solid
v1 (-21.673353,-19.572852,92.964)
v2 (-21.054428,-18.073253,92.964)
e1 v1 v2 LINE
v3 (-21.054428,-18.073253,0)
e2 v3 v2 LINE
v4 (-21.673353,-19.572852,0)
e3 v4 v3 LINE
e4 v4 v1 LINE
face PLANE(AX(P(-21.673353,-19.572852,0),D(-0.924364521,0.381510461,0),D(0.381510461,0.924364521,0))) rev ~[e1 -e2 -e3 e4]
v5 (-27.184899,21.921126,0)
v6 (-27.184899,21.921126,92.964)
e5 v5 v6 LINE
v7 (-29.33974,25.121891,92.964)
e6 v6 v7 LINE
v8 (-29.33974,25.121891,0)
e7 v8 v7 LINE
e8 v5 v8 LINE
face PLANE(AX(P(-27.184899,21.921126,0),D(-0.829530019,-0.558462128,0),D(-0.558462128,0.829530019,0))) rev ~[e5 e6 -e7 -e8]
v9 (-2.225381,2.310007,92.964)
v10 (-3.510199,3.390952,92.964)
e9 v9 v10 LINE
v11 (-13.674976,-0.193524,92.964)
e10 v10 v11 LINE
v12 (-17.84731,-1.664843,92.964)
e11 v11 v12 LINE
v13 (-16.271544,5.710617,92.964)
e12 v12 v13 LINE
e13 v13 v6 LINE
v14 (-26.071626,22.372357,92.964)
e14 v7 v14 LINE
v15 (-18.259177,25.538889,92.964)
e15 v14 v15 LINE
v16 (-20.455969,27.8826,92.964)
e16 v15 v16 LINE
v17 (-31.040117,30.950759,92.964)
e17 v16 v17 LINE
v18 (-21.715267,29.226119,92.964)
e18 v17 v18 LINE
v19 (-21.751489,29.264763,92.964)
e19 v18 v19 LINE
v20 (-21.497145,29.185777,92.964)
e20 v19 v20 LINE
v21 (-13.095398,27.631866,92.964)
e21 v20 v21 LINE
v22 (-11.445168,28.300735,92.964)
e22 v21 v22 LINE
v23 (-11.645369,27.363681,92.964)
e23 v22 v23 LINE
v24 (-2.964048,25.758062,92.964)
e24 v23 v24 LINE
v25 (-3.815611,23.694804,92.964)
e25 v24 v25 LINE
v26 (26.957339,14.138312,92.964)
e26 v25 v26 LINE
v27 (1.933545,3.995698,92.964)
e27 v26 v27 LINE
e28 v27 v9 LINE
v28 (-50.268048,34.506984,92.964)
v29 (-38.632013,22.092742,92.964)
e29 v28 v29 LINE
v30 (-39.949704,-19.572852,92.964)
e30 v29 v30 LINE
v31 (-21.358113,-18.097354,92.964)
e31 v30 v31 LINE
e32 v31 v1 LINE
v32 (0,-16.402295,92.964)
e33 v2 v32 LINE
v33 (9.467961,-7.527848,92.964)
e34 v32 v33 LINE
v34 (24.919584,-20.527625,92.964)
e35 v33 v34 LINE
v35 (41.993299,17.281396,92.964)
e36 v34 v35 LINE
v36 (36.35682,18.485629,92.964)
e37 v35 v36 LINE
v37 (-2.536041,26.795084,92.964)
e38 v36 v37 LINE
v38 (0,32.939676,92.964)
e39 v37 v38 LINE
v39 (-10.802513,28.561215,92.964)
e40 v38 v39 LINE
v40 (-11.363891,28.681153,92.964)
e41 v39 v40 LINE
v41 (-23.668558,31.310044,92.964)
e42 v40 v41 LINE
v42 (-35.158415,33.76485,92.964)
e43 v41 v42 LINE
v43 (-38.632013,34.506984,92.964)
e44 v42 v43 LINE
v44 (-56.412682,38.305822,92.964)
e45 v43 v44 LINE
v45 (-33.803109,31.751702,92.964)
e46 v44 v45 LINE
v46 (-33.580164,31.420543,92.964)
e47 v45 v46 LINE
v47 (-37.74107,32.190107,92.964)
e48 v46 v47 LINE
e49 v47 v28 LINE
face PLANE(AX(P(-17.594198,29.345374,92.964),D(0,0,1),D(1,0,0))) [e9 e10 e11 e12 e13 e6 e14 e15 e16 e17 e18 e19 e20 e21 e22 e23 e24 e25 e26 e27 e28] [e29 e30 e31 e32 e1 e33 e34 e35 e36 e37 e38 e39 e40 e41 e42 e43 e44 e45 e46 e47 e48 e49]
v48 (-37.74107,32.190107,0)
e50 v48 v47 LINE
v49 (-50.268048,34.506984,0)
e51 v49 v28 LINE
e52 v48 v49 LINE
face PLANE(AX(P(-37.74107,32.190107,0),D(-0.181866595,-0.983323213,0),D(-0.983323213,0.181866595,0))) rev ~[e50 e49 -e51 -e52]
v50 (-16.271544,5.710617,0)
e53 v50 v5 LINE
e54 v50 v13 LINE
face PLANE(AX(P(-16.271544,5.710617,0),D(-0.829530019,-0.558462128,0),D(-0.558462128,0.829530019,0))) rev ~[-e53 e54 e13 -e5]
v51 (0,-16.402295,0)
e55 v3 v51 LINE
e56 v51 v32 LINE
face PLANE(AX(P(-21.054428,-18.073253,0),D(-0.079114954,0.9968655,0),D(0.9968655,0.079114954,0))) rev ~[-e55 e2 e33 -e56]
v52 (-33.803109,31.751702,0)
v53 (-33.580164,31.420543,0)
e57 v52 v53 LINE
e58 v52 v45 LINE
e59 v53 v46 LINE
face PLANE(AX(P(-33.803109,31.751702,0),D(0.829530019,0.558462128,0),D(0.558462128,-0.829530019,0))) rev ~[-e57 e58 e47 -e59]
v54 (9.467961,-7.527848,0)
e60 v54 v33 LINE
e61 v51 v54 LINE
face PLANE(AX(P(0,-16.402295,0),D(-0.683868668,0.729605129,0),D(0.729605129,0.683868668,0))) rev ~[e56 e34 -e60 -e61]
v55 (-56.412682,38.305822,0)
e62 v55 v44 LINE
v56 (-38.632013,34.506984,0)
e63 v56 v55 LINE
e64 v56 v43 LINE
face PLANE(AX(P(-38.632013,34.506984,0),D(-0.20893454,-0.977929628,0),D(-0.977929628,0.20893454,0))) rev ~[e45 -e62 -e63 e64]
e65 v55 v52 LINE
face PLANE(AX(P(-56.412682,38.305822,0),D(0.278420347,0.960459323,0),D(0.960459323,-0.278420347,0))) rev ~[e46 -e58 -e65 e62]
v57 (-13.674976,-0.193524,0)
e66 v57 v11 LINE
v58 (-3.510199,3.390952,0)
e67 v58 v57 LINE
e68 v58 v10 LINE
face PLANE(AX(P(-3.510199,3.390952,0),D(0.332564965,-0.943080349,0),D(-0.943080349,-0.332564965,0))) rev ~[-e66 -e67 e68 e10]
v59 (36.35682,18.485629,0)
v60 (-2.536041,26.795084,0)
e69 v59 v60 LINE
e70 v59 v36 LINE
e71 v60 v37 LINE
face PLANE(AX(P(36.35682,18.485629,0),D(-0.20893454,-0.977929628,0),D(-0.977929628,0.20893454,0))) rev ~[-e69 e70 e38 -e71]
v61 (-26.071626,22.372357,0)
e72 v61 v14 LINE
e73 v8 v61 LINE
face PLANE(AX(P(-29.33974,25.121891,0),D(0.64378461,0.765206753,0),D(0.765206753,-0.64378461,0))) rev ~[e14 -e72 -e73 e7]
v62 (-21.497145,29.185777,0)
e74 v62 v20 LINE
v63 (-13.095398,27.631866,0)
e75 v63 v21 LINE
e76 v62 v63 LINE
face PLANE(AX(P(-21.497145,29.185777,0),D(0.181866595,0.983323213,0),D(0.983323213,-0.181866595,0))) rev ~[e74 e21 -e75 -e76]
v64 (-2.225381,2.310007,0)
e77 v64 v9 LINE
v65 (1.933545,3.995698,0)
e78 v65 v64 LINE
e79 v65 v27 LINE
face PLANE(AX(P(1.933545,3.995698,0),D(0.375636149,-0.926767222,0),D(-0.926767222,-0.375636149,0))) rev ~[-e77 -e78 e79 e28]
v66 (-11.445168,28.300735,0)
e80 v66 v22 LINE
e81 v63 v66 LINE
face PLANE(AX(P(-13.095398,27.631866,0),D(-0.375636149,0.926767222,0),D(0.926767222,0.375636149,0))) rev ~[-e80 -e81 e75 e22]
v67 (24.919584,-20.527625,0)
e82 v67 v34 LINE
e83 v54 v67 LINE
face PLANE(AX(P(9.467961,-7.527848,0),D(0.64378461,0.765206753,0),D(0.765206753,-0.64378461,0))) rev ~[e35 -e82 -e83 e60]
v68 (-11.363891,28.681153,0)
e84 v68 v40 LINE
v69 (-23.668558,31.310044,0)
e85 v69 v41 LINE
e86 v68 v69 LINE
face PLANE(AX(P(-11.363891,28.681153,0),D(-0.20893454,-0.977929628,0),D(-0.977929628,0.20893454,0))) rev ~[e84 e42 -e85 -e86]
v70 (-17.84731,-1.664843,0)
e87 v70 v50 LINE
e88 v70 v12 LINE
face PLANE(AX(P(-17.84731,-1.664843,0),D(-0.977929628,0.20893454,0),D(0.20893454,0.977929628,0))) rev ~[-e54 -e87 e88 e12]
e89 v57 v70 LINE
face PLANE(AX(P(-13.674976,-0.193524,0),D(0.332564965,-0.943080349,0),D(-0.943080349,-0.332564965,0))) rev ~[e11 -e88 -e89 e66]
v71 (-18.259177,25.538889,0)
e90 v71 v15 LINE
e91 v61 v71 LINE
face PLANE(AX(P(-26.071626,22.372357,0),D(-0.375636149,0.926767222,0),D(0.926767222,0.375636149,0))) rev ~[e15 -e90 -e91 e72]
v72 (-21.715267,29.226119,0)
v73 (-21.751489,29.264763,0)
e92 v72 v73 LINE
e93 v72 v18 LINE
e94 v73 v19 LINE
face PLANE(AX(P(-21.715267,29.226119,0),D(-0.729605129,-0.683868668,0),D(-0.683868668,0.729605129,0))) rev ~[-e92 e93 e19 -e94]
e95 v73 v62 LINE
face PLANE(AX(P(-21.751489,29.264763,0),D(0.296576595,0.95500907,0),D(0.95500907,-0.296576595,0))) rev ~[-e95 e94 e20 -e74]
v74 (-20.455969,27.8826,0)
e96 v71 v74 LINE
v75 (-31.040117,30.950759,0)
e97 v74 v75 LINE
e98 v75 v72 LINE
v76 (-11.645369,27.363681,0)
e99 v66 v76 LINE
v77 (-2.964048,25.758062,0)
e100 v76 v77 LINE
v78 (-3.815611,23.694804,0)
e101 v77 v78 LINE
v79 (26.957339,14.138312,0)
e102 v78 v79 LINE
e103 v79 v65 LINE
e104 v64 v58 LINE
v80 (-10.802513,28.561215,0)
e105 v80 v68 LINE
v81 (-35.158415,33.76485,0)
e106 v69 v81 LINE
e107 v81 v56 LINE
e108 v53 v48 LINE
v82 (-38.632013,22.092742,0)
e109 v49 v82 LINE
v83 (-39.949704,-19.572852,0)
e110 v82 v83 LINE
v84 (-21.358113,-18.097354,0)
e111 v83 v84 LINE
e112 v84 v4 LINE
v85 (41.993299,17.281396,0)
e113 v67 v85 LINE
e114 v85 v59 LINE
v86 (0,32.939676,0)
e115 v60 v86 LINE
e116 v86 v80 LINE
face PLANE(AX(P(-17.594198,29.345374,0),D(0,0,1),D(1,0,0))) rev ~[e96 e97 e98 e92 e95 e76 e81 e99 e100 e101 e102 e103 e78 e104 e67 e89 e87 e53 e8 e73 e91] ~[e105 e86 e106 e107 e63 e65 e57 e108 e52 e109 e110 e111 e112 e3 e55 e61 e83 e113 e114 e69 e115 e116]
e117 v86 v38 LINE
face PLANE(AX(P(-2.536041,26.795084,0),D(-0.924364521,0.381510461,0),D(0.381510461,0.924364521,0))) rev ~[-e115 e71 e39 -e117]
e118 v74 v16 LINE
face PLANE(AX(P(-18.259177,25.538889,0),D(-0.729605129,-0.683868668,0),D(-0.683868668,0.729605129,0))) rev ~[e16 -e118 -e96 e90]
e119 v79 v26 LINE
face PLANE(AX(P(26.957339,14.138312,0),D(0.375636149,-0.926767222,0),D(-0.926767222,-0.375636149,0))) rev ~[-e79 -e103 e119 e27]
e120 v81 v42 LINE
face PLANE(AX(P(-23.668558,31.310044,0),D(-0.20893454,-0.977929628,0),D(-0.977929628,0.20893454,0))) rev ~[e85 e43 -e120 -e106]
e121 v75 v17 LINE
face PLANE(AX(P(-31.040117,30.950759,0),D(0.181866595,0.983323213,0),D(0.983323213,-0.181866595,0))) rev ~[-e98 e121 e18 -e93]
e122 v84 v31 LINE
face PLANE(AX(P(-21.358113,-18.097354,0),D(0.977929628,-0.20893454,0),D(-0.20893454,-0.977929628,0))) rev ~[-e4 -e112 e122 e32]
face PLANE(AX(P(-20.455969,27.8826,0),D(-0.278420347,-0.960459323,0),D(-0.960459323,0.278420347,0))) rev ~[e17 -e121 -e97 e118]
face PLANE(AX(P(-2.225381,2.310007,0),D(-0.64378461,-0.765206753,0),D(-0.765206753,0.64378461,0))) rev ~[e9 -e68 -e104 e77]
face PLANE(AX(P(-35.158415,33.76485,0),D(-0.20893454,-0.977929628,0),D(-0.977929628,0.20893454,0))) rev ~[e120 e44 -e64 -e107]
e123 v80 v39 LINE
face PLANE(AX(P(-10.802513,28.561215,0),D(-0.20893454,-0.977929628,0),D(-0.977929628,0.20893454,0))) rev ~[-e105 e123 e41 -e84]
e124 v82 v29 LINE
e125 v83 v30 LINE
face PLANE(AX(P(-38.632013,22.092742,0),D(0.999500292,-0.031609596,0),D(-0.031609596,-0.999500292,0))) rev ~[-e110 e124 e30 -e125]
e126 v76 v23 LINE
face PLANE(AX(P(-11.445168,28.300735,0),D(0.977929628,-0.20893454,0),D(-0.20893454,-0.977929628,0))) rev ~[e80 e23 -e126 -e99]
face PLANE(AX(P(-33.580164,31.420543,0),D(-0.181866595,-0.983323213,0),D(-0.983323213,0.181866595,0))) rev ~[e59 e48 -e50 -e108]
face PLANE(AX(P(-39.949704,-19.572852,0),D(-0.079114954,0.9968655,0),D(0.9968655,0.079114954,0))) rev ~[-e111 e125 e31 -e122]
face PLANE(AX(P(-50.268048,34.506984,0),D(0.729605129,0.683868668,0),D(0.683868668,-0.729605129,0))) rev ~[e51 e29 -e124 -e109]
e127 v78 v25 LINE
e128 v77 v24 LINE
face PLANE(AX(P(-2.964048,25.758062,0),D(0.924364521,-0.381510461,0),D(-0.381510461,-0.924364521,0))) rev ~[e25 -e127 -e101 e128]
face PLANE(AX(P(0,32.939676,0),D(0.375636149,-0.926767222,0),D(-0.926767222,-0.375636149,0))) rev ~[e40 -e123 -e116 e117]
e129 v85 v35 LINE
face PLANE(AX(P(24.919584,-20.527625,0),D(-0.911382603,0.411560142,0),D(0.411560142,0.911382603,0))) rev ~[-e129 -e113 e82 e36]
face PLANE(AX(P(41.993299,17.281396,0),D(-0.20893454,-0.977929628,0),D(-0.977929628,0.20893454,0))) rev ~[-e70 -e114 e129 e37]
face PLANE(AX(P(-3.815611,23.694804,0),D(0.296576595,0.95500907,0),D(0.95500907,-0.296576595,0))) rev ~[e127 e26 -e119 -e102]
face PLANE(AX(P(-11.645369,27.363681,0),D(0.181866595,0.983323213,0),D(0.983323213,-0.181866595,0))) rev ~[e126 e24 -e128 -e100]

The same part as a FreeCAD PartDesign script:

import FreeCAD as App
import Part
import Sketcher
from FreeCAD import Vector
Q = App.Units.Quantity


def add_polygon(sketch, points):
    """Adds a closed chain of lines whose ends are joined by coincident constraints."""
    first, n = sketch.GeometryCount, len(points)
    for a, b in zip(points, points[1:] + points[:1]):
        sketch.addGeometry(Part.LineSegment(App.Vector(*a, 0), App.Vector(*b, 0)), False)
    for i in range(n):
        sketch.addConstraint(Sketcher.Constraint("Coincident", first + i, 2, first + (i + 1) % n, 1))

doc = App.newDocument("Part")
params = doc.addObject("Spreadsheet::Sheet", "Params")
for row, (alias, value) in enumerate([
    ("pad1_length", "3.66 in"),
], start=1):
    params.set(f"A{row}", alias)
    params.set(f"B{row}", "=" + value)
    params.setAlias(f"B{row}", alias)

body = doc.addObject("PartDesign::Body", "Body")

# Sketch on XY plane
sketch1 = body.newObject("Sketcher::SketchObject", "Sketch")
sketch1.AttachmentSupport = (doc.getObject("XY_Plane"), [""])
sketch1.MapMode = "FlatFace"
add_polygon(sketch1, [(-38.632013, 22.092742), (-39.949704, -19.572852), (-21.358113, -18.097354), (-21.673353, -19.572852), (-21.054428, -18.073253), (0, -16.402295), (9.467961, -7.527848), (24.919584, -20.527625), (41.993299, 17.281396), (36.35682, 18.485629), (-2.536041, 26.795084), (0, 32.939676), (-10.802513, 28.561215), (-11.363891, 28.681153), (-23.668558, 31.310044), (-35.158415, 33.76485), (-38.632013, 34.506984), (-56.412682, 38.305822), (-33.803109, 31.751702), (-33.580164, 31.420543), (-37.74107, 32.190107), (-50.268048, 34.506984)])  # lines 0-21
add_polygon(sketch1, [(-13.674976, -0.193524), (-17.84731, -1.664843), (-16.271544, 5.710617), (-27.184899, 21.921126), (-29.33974, 25.121891), (-26.071626, 22.372357), (-18.259177, 25.538889), (-20.455969, 27.8826), (-31.040117, 30.950759), (-21.715267, 29.226119), (-21.751489, 29.264763), (-21.497145, 29.185777), (-13.095398, 27.631866), (-11.445168, 28.300735), (-11.645369, 27.363681), (-2.964048, 25.758062), (-3.815611, 23.694804), (26.957339, 14.138312), (1.933545, 3.995698), (-2.225381, 2.310007), (-3.510199, 3.390952)])  # lines 22-42
sketch1.addConstraint([
    Sketcher.Constraint("PointOnObject", 4, 2, -2),
    Sketcher.Constraint("PointOnObject", 10, 2, -2),
    Sketcher.Constraint("DistanceX", 34, 2, 12, 2, Q("0.0031999 in")),
    Sketcher.Constraint("Distance", 24, Q("19.5418 mm")),
    Sketcher.Constraint("Distance", 28, Q("3.2123 mm")),
    Sketcher.Constraint("Distance", 35, Q("0.958201 mm")),
    Sketcher.Constraint("DistanceX", -1, 1, 7, 2, Q("41.993299 mm")),
    Sketcher.Constraint("DistanceX", 24, 2, -1, 1, Q("27.184899 mm")),
    Sketcher.Constraint("DistanceY", -1, 1, 28, 2, Q("27.8826 mm")),
    Sketcher.Constraint("DistanceY", -1, 1, 39, 2, Q("3.995698 mm")),
    Sketcher.Constraint("DistanceX", 41, 2, -1, 1, Q("3.510199 mm")),
    Sketcher.Constraint("DistanceY", 1, 2, 3, 2, Q("0.024102 mm")),
    Sketcher.Constraint("DistanceY", 2, 2, 3, 2, Q("1.499599 mm")),
    Sketcher.Constraint("DistanceY", 0, 2, 3, 2, Q("1.499599 mm")),
    Sketcher.Constraint("DistanceX", 9, 2, 5, 2, Q("12.004002 mm")),
    Sketcher.Constraint("DistanceY", 5, 2, 12, 2, Q("36.209001 mm")),
    Sketcher.Constraint("DistanceX", 14, 2, 11, 2, Q("24.355902 mm")),
    Sketcher.Constraint("DistanceX", 15, 2, 11, 2, Q("27.8295 mm")),
    Sketcher.Constraint("DistanceY", 9, 2, 15, 2, Q("7.7119 mm")),
    Sketcher.Constraint("DistanceY", 13, 2, 18, 2, Q("0.1105 mm")),
    Sketcher.Constraint("DistanceY", 21, 2, 18, 2, Q("9.327801 mm")),
    Sketcher.Constraint("DistanceY", 23, 2, 11, 2, Q("22.850598 mm")),
    Sketcher.Constraint("DistanceX", 14, 2, 29, 2, Q("4.118298 mm")),
    Sketcher.Constraint("DistanceX", 30, 2, 28, 2, Q("1.259299 mm")),
    Sketcher.Constraint("DistanceX", 28, 2, 34, 2, Q("9.010801 mm")),
    Sketcher.Constraint("DistanceX", 35, 2, 34, 2, Q("0.200201 mm")),
    Sketcher.Constraint("DistanceY", 5, 2, 41, 2, Q("10.9188 mm")),
    Sketcher.Constraint("Distance", 1, Q("18.650049 mm")),
    Sketcher.Constraint("Distance", 4, Q("21.12063 mm")),
    Sketcher.Constraint("Distance", 5, Q("12.976829 mm")),
    Sketcher.Constraint("Distance", 10, Q("6.647369 mm")),
    Sketcher.Constraint("Distance", 15, Q("3.551992 mm")),
    Sketcher.Constraint("Distance", 16, Q("18.181951 mm")),
    Sketcher.Constraint("Distance", 20, Q("12.739431 mm")),
    Sketcher.Constraint("Distance", 26, Q("4.270891 mm")),
    Sketcher.Constraint("Distance", 29, Q("11.019882 mm")),
    Sketcher.Constraint("Distance", 34, Q("1.780631 mm")),
    Sketcher.Constraint("Distance", 38, Q("32.222679 mm")),
    Sketcher.Constraint("DistanceX", -1, 1, 5, 2, Q("9.467961 mm")),
    Sketcher.Constraint("DistanceY", 5, 2, -1, 1, Q("7.527848 mm")),
    Sketcher.Constraint("DistanceX", -1, 1, 8, 2, Q("36.35682 mm")),
    Sketcher.Constraint("DistanceY", -1, 1, 8, 2, Q("18.485629 mm")),
    Sketcher.Constraint("DistanceX", 12, 2, -1, 1, Q("11.363891 mm")),
    Sketcher.Constraint("DistanceY", -1, 1, 14, 2, Q("33.76485 mm")),
    Sketcher.Constraint("DistanceX", 16, 2, -1, 1, Q("56.412682 mm")),
    Sketcher.Constraint("DistanceY", -1, 1, 16, 2, Q("38.305822 mm")),
    Sketcher.Constraint("DistanceX", 17, 2, -1, 1, Q("33.803109 mm")),
    Sketcher.Constraint("DistanceX", 19, 2, -1, 1, Q("37.74107 mm")),
    Sketcher.Constraint("DistanceX", 20, 2, -1, 1, Q("50.268048 mm")),
    Sketcher.Constraint("DistanceY", -1, 1, 21, 2, Q("22.092742 mm")),
    Sketcher.Constraint("DistanceX", 22, 2, -1, 1, Q("17.84731 mm")),
    Sketcher.Constraint("DistanceX", 25, 2, -1, 1, Q("29.33974 mm")),
    Sketcher.Constraint("DistanceY", -1, 1, 25, 2, Q("25.121891 mm")),
    Sketcher.Constraint("DistanceY", -1, 1, 27, 2, Q("25.538889 mm")),
    Sketcher.Constraint("DistanceY", -1, 1, 30, 2, Q("29.226119 mm")),
    Sketcher.Constraint("DistanceX", 31, 2, -1, 1, Q("21.751489 mm")),
    Sketcher.Constraint("DistanceY", -1, 1, 35, 2, Q("27.363681 mm")),
    Sketcher.Constraint("DistanceX", 37, 2, -1, 1, Q("3.815611 mm")),
    Sketcher.Constraint("DistanceX", -1, 1, 38, 2, Q("26.957339 mm")),
    Sketcher.Constraint("DistanceY", -1, 1, 38, 2, Q("14.138312 mm")),
    Sketcher.Constraint("DistanceX", 40, 2, -1, 1, Q("2.225381 mm")),
    Sketcher.Constraint("DistanceX", 2, 2, 1, 2, Q("0.31524 mm")),
    Sketcher.Constraint("DistanceY", 1, 2, 4, 2, Q("1.695059 mm")),
    Sketcher.Constraint("DistanceY", 6, 2, 4, 2, Q("4.12533 mm")),
    Sketcher.Constraint("DistanceY", 6, 2, 7, 2, Q("37.809022 mm")),
    Sketcher.Constraint("DistanceY", 9, 2, 11, 2, Q("1.766131 mm")),
    Sketcher.Constraint("DistanceX", 13, 2, 3, 2, Q("2.61413 mm")),
    Sketcher.Constraint("DistanceY", 17, 2, 15, 2, Q("2.755282 mm")),
    Sketcher.Constraint("DistanceX", 14, 2, 18, 2, Q("1.578251 mm")),
    Sketcher.Constraint("DistanceY", 17, 2, 20, 2, Q("2.755282 mm")),
    Sketcher.Constraint("DistanceX", 21, 2, 18, 2, Q("5.051849 mm")),
    Sketcher.Constraint("DistanceY", 3, 2, 22, 2, Q("16.40841 mm")),
    Sketcher.Constraint("DistanceX", 23, 2, 11, 2, Q("5.46903 mm")),
    Sketcher.Constraint("DistanceX", 1, 2, 23, 2, Q("5.08657 mm")),
    Sketcher.Constraint("DistanceY", 24, 2, 26, 2, Q("0.451231 mm")),
    Sketcher.Constraint("DistanceY", 31, 2, 13, 2, Q("2.04528 mm")),
    Sketcher.Constraint("DistanceY", 32, 2, 30, 2, Q("0.040342 mm")),
    Sketcher.Constraint("DistanceY", 33, 2, 11, 2, Q("0.929349 mm")),
    Sketcher.Constraint("DistanceY", 36, 2, 9, 2, Q("1.037022 mm")),
    Sketcher.Constraint("DistanceX", 35, 2, 36, 2, Q("8.681321 mm")),
    Sketcher.Constraint("DistanceX", 23, 2, 39, 2, Q("18.205088 mm")),
    Sketcher.Constraint("DistanceY", 40, 2, 39, 2, Q("1.685691 mm")),
    Sketcher.Constraint("DistanceY", 22, 2, 42, 2, Q("1.471319 mm")),
    Sketcher.Constraint("DistanceX", 42, 2, 39, 2, Q("15.60852 mm")),
    Sketcher.Constraint("Distance", 6, Q("20.192743 mm")),
    Sketcher.Constraint("Distance", 32, Q("0.266327 mm")),
])
pad1 = body.newObject("PartDesign::Pad", "Pad")
pad1.Profile = sketch1
pad1.setExpression("Length", "Params.pad1_length")

doc.recompute()
